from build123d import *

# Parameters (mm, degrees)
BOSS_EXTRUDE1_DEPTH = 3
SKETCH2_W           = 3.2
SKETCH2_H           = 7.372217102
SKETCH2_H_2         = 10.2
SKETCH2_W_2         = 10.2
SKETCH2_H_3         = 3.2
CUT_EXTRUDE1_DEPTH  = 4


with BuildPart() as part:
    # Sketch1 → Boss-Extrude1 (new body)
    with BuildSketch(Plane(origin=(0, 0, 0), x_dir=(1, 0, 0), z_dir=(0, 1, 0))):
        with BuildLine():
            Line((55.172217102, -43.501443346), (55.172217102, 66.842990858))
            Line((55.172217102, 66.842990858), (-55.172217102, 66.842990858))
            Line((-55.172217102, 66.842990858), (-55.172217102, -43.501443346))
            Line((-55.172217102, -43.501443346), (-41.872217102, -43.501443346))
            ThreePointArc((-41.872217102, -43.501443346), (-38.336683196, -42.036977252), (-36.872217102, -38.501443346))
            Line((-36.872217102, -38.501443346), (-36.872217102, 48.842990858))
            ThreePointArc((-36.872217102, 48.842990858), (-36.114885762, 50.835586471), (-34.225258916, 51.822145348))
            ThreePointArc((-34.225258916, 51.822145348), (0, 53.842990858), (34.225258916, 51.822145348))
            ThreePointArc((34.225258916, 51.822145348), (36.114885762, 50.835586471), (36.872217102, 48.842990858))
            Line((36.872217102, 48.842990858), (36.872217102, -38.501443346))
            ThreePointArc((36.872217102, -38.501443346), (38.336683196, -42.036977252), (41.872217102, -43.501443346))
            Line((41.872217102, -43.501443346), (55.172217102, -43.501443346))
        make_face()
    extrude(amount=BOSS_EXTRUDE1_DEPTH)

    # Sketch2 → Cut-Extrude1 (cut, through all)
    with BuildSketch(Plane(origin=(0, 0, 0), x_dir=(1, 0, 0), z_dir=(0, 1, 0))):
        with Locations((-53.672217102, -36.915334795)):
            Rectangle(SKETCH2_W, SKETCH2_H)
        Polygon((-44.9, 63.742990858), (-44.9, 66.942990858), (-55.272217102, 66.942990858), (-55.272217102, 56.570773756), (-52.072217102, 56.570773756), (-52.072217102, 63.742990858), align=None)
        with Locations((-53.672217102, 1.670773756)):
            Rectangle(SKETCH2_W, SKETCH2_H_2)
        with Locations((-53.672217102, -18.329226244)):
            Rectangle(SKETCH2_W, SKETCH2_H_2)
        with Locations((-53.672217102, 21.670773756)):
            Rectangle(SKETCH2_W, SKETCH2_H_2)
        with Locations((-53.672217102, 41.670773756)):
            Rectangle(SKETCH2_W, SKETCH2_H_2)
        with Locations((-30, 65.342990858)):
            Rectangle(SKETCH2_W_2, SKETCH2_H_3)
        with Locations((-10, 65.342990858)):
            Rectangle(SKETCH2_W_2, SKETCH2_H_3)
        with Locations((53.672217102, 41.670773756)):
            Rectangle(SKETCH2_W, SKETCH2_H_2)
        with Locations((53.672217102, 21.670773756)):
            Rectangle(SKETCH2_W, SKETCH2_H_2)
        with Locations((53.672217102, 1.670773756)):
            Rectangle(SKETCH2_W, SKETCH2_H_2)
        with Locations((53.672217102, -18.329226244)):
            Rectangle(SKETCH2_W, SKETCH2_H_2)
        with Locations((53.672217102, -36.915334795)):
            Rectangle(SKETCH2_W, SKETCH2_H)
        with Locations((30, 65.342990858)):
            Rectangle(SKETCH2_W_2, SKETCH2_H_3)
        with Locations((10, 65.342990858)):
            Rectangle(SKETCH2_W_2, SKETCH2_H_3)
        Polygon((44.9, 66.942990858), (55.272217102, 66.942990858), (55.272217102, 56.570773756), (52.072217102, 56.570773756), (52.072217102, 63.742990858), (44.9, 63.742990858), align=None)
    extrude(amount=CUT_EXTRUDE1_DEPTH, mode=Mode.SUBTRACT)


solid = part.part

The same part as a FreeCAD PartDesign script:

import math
import FreeCAD as App
import Part
import Sketcher

V = App.Vector

doc = App.newDocument("Part")
params = doc.addObject("Spreadsheet::Sheet", "Params")
for row, (alias, value) in enumerate([
    ("sketch1_radius", "5 mm"),
    ("sketch1_radius2", "3 mm"),
    ("sketch1_width", "13.3 mm"),
    ("pad1_length", "3 mm"),
    ("sketch2_width", "3.2 mm"),
    ("sketch2_width2", "10.2 mm"),
], start=1):
    params.set(f"A{row}", alias)
    params.set(f"B{row}", "=" + value)
    params.setAlias(f"B{row}", alias)

body = doc.addObject("PartDesign::Body", "Body")

# Sketch on XZ plane
sketch1 = doc.addObject("Sketcher::SketchObject", "Sketch")
body.addObject(sketch1)
sketch1.AttachmentSupport = (doc.XZ_Plane, [""])
sketch1.MapMode = "FlatFace"
sketch1.addGeometry(Part.LineSegment(V(55.2, 43.5, 0), V(55.2, -66.8, 0)), False)
sketch1.addGeometry(Part.LineSegment(V(55.2, -66.8, 0), V(-55.2, -66.8, 0)), False)
sketch1.addGeometry(Part.LineSegment(V(-55.2, -66.8, 0), V(-55.2, 43.5, 0)), False)
sketch1.addGeometry(Part.LineSegment(V(-55.2, 43.5, 0), V(-41.9, 43.5, 0)), False)
sketch1.addGeometry(Part.ArcOfCircle(Part.Circle(V(-41.9, 38.5, 0), V(0, 0, 1), 5), math.radians(0), math.radians(90)), False)
sketch1.addGeometry(Part.LineSegment(V(-36.9, 38.5, 0), V(-36.9, -48.8, 0)), False)
sketch1.addGeometry(Part.ArcOfCircle(Part.Circle(V(-33.9, -48.8, 0), V(0, 0, 1), 3), math.radians(-180), math.radians(-97)), False)
sketch1.addGeometry(Part.ArcOfCircle(Part.Circle(V(0, 237, 0), V(0, 0, 1), 290.8), math.radians(-96.76), math.radians(-83.24)), False)
sketch1.addGeometry(Part.ArcOfCircle(Part.Circle(V(33.9, -48.8, 0), V(0, 0, 1), 3), math.radians(-83), math.radians(0)), False)
sketch1.addGeometry(Part.LineSegment(V(36.9, -48.8, 0), V(36.9, 38.5, 0)), False)
sketch1.addGeometry(Part.ArcOfCircle(Part.Circle(V(41.9, 38.5, 0), V(0, 0, 1), 5), math.radians(90), math.radians(180)), False)
sketch1.addGeometry(Part.LineSegment(V(41.9, 43.5, 0), V(55.2, 43.5, 0)), False)
sketch1.addConstraint(Sketcher.Constraint("Coincident", 0, 2, 1, 1))
sketch1.addConstraint(Sketcher.Constraint("Coincident", 1, 2, 2, 1))
sketch1.addConstraint(Sketcher.Constraint("Coincident", 2, 2, 3, 1))
sketch1.addConstraint(Sketcher.Constraint("Tangent", 3, 2, 4, 2))
sketch1.addConstraint(Sketcher.Constraint("Tangent", 4, 1, 5, 1))
sketch1.addConstraint(Sketcher.Constraint("Tangent", 5, 2, 6, 1))
sketch1.addConstraint(Sketcher.Constraint("Tangent", 6, 2, 7, 1))
sketch1.addConstraint(Sketcher.Constraint("Tangent", 7, 2, 8, 1))
sketch1.addConstraint(Sketcher.Constraint("Tangent", 8, 2, 9, 1))
sketch1.addConstraint(Sketcher.Constraint("Tangent", 9, 2, 10, 2))
sketch1.addConstraint(Sketcher.Constraint("Tangent", 10, 1, 11, 1))
sketch1.addConstraint(Sketcher.Constraint("Coincident", 11, 2, 0, 1))
sketch1.addConstraint(Sketcher.Constraint("Vertical", 0))
sketch1.addConstraint(Sketcher.Constraint("Horizontal", 1))
sketch1.addConstraint(Sketcher.Constraint("Vertical", 2))
sketch1.addConstraint(Sketcher.Constraint("Horizontal", 3))
sketch1.addConstraint(Sketcher.Constraint("Vertical", 5))
sketch1.addConstraint(Sketcher.Constraint("Vertical", 9))
sketch1.addConstraint(Sketcher.Constraint("Horizontal", 11))
sketch1.addConstraint(Sketcher.Constraint("Equal", 6, 8))
sketch1.addConstraint(Sketcher.Constraint("Equal", 4, 10))
sketch1.addConstraint(Sketcher.Constraint("Symmetric", 6, 3, 8, 3, -2))
sketch1.addConstraint(Sketcher.Constraint("Symmetric", 2, 2, 11, 2, -2))
sketch1.addConstraint(Sketcher.Constraint("Equal", 1, 0))
sketch1.addConstraint(Sketcher.Constraint("Radius", 4, 5.0))
sketch1.addConstraint(Sketcher.Constraint("Radius", 6, 3.0))
sketch1.addConstraint(Sketcher.Constraint("DistanceX", 3, 1, 3, 2, 13.3))
sketch1.addConstraint(Sketcher.Constraint("DistanceY", 0, 2, 8, 3, 18.0))
sketch1.addConstraint(Sketcher.Constraint("Radius", 7, 290.831773))
sketch1.addConstraint(Sketcher.Constraint("DistanceX", 1, 2, 1, 1, 110.344434))
sketch1.addConstraint(Sketcher.Constraint("DistanceY", 6, 3, -1, 1, 48.842991))
sketch1.setExpression("Constraints[24]", "Params.sketch1_radius")
sketch1.setExpression("Constraints[25]", "Params.sketch1_radius2")
sketch1.setExpression("Constraints[26]", "Params.sketch1_width")
pad1 = doc.addObject("PartDesign::Pad", "Pad")
body.addObject(pad1)
pad1.Profile = sketch1
pad1.setExpression("Length", "Params.pad1_length")
pad1.Reversed = True

# Sketch on XZ plane
sketch2 = doc.addObject("Sketcher::SketchObject", "Sketch001")
body.addObject(sketch2)
sketch2.AttachmentSupport = (doc.XZ_Plane, [""])
sketch2.MapMode = "FlatFace"
sketch2.addGeometry(Part.LineSegment(V(-55.3, 33.2, 0), V(-55.3, 40.6, 0)), False)
sketch2.addGeometry(Part.LineSegment(V(-55.3, 40.6, 0), V(-52.1, 40.6, 0)), False)
sketch2.addGeometry(Part.LineSegment(V(-52.1, 40.6, 0), V(-52.1, 33.2, 0)), False)
sketch2.addGeometry(Part.LineSegment(V(-52.1, 33.2, 0), V(-55.3, 33.2, 0)), False)
sketch2.addGeometry(Part.LineSegment(V(-44.9, -63.7, 0), V(-44.9, -66.9, 0)), False)
sketch2.addGeometry(Part.LineSegment(V(-44.9, -66.9, 0), V(-55.3, -66.9, 0)), False)
sketch2.addGeometry(Part.LineSegment(V(-55.3, -66.9, 0), V(-55.3, -56.6, 0)), False)
sketch2.addGeometry(Part.LineSegment(V(-55.3, -56.6, 0), V(-52.1, -56.6, 0)), False)
sketch2.addGeometry(Part.LineSegment(V(-52.1, -56.6, 0), V(-52.1, -63.7, 0)), False)
sketch2.addGeometry(Part.LineSegment(V(-52.1, -63.7, 0), V(-44.9, -63.7, 0)), False)
sketch2.addGeometry(Part.LineSegment(V(-55.3, -6.8, 0), V(-55.3, 3.4, 0)), False)
sketch2.addGeometry(Part.LineSegment(V(-55.3, 3.4, 0), V(-52.1, 3.4, 0)), False)
sketch2.addGeometry(Part.LineSegment(V(-52.1, 3.4, 0), V(-52.1, -6.8, 0)), False)
sketch2.addGeometry(Part.LineSegment(V(-52.1, -6.8, 0), V(-55.3, -6.8, 0)), False)
sketch2.addGeometry(Part.LineSegment(V(-55.3, 13.2, 0), V(-55.3, 23.4, 0)), False)
sketch2.addGeometry(Part.LineSegment(V(-55.3, 23.4, 0), V(-52.1, 23.4, 0)), False)
sketch2.addGeometry(Part.LineSegment(V(-52.1, 23.4, 0), V(-52.1, 13.2, 0)), False)
sketch2.addGeometry(Part.LineSegment(V(-52.1, 13.2, 0), V(-55.3, 13.2, 0)), False)
sketch2.addGeometry(Part.LineSegment(V(-55.3, -26.8, 0), V(-55.3, -16.6, 0)), False)
sketch2.addGeometry(Part.LineSegment(V(-55.3, -16.6, 0), V(-52.1, -16.6, 0)), False)
sketch2.addGeometry(Part.LineSegment(V(-52.1, -16.6, 0), V(-52.1, -26.8, 0)), False)
sketch2.addGeometry(Part.LineSegment(V(-52.1, -26.8, 0), V(-55.3, -26.8, 0)), False)
sketch2.addGeometry(Part.LineSegment(V(-55.3, -46.8, 0), V(-55.3, -36.6, 0)), False)
sketch2.addGeometry(Part.LineSegment(V(-55.3, -36.6, 0), V(-52.1, -36.6, 0)), False)
sketch2.addGeometry(Part.LineSegment(V(-52.1, -36.6, 0), V(-52.1, -46.8, 0)), False)
sketch2.addGeometry(Part.LineSegment(V(-52.1, -46.8, 0), V(-55.3, -46.8, 0)), False)
sketch2.addGeometry(Part.LineSegment(V(-35.1, -66.9, 0), V(-35.1, -63.7, 0)), False)
sketch2.addGeometry(Part.LineSegment(V(-35.1, -63.7, 0), V(-24.9, -63.7, 0)), False)
sketch2.addGeometry(Part.LineSegment(V(-24.9, -63.7, 0), V(-24.9, -66.9, 0)), False)
sketch2.addGeometry(Part.LineSegment(V(-24.9, -66.9, 0), V(-35.1, -66.9, 0)), False)
sketch2.addGeometry(Part.LineSegment(V(-15.1, -66.9, 0), V(-15.1, -63.7, 0)), False)
sketch2.addGeometry(Part.LineSegment(V(-15.1, -63.7, 0), V(-4.9, -63.7, 0)), False)
sketch2.addGeometry(Part.LineSegment(V(-4.9, -63.7, 0), V(-4.9, -66.9, 0)), False)
sketch2.addGeometry(Part.LineSegment(V(-4.9, -66.9, 0), V(-15.1, -66.9, 0)), False)
sketch2.addGeometry(Part.LineSegment(V(52.1, -46.8, 0), V(52.1, -36.6, 0)), False)
sketch2.addGeometry(Part.LineSegment(V(52.1, -36.6, 0), V(55.3, -36.6, 0)), False)
sketch2.addGeometry(Part.LineSegment(V(55.3, -36.6, 0), V(55.3, -46.8, 0)), False)
sketch2.addGeometry(Part.LineSegment(V(55.3, -46.8, 0), V(52.1, -46.8, 0)), False)
sketch2.addGeometry(Part.LineSegment(V(52.1, -26.8, 0), V(52.1, -16.6, 0)), False)
sketch2.addGeometry(Part.LineSegment(V(52.1, -16.6, 0), V(55.3, -16.6, 0)), False)
sketch2.addGeometry(Part.LineSegment(V(55.3, -16.6, 0), V(55.3, -26.8, 0)), False)
sketch2.addGeometry(Part.LineSegment(V(55.3, -26.8, 0), V(52.1, -26.8, 0)), False)
sketch2.addGeometry(Part.LineSegment(V(52.1, -6.8, 0), V(52.1, 3.4, 0)), False)
sketch2.addGeometry(Part.LineSegment(V(52.1, 3.4, 0), V(55.3, 3.4, 0)), False)
sketch2.addGeometry(Part.LineSegment(V(55.3, 3.4, 0), V(55.3, -6.8, 0)), False)
sketch2.addGeometry(Part.LineSegment(V(55.3, -6.8, 0), V(52.1, -6.8, 0)), False)
sketch2.addGeometry(Part.LineSegment(V(52.1, 13.2, 0), V(52.1, 23.4, 0)), False)
sketch2.addGeometry(Part.LineSegment(V(52.1, 23.4, 0), V(55.3, 23.4, 0)), False)
sketch2.addGeometry(Part.LineSegment(V(55.3, 23.4, 0), V(55.3, 13.2, 0)), False)
sketch2.addGeometry(Part.LineSegment(V(55.3, 13.2, 0), V(52.1, 13.2, 0)), False)
sketch2.addGeometry(Part.LineSegment(V(52.1, 33.2, 0), V(52.1, 40.6, 0)), False)
sketch2.addGeometry(Part.LineSegment(V(52.1, 40.6, 0), V(55.3, 40.6, 0)), False)
sketch2.addGeometry(Part.LineSegment(V(55.3, 40.6, 0), V(55.3, 33.2, 0)), False)
sketch2.addGeometry(Part.LineSegment(V(55.3, 33.2, 0), V(52.1, 33.2, 0)), False)
sketch2.addGeometry(Part.LineSegment(V(24.9, -66.9, 0), V(24.9, -63.7, 0)), False)
sketch2.addGeometry(Part.LineSegment(V(24.9, -63.7, 0), V(35.1, -63.7, 0)), False)
sketch2.addGeometry(Part.LineSegment(V(35.1, -63.7, 0), V(35.1, -66.9, 0)), False)
sketch2.addGeometry(Part.LineSegment(V(35.1, -66.9, 0), V(24.9, -66.9, 0)), False)
sketch2.addGeometry(Part.LineSegment(V(4.9, -66.9, 0), V(4.9, -63.7, 0)), False)
sketch2.addGeometry(Part.LineSegment(V(4.9, -63.7, 0), V(15.1, -63.7, 0)), False)
sketch2.addGeometry(Part.LineSegment(V(15.1, -63.7, 0), V(15.1, -66.9, 0)), False)
sketch2.addGeometry(Part.LineSegment(V(15.1, -66.9, 0), V(4.9, -66.9, 0)), False)
sketch2.addGeometry(Part.LineSegment(V(55.3, -66.9, 0), V(44.9, -66.9, 0)), False)
sketch2.addGeometry(Part.LineSegment(V(44.9, -66.9, 0), V(44.9, -63.7, 0)), False)
sketch2.addGeometry(Part.LineSegment(V(44.9, -63.7, 0), V(52.1, -63.7, 0)), False)
sketch2.addGeometry(Part.LineSegment(V(52.1, -63.7, 0), V(52.1, -56.6, 0)), False)
sketch2.addGeometry(Part.LineSegment(V(52.1, -56.6, 0), V(55.3, -56.6, 0)), False)
sketch2.addGeometry(Part.LineSegment(V(55.3, -56.6, 0), V(55.3, -66.9, 0)), False)
sketch2.addConstraint(Sketcher.Constraint("Coincident", 0, 2, 1, 1))
sketch2.addConstraint(Sketcher.Constraint("Coincident", 1, 2, 2, 1))
sketch2.addConstraint(Sketcher.Constraint("Coincident", 2, 2, 3, 1))
sketch2.addConstraint(Sketcher.Constraint("Coincident", 3, 2, 0, 1))
sketch2.addConstraint(Sketcher.Constraint("Coincident", 4, 2, 5, 1))
sketch2.addConstraint(Sketcher.Constraint("Coincident", 5, 2, 6, 1))
sketch2.addConstraint(Sketcher.Constraint("Coincident", 6, 2, 7, 1))
sketch2.addConstraint(Sketcher.Constraint("Coincident", 7, 2, 8, 1))
sketch2.addConstraint(Sketcher.Constraint("Coincident", 8, 2, 9, 1))
sketch2.addConstraint(Sketcher.Constraint("Coincident", 9, 2, 4, 1))
sketch2.addConstraint(Sketcher.Constraint("Coincident", 10, 2, 11, 1))
sketch2.addConstraint(Sketcher.Constraint("Coincident", 11, 2, 12, 1))
sketch2.addConstraint(Sketcher.Constraint("Coincident", 12, 2, 13, 1))
sketch2.addConstraint(Sketcher.Constraint("Coincident", 13, 2, 10, 1))
sketch2.addConstraint(Sketcher.Constraint("Coincident", 14, 2, 15, 1))
sketch2.addConstraint(Sketcher.Constraint("Coincident", 15, 2, 16, 1))
sketch2.addConstraint(Sketcher.Constraint("Coincident", 16, 2, 17, 1))
sketch2.addConstraint(Sketcher.Constraint("Coincident", 17, 2, 14, 1))
sketch2.addConstraint(Sketcher.Constraint("Coincident", 18, 2, 19, 1))
sketch2.addConstraint(Sketcher.Constraint("Coincident", 19, 2, 20, 1))
sketch2.addConstraint(Sketcher.Constraint("Coincident", 20, 2, 21, 1))
sketch2.addConstraint(Sketcher.Constraint("Coincident", 21, 2, 18, 1))
sketch2.addConstraint(Sketcher.Constraint("Coincident", 22, 2, 23, 1))
sketch2.addConstraint(Sketcher.Constraint("Coincident", 23, 2, 24, 1))
sketch2.addConstraint(Sketcher.Constraint("Coincident", 24, 2, 25, 1))
sketch2.addConstraint(Sketcher.Constraint("Coincident", 25, 2, 22, 1))
sketch2.addConstraint(Sketcher.Constraint("Coincident", 26, 2, 27, 1))
sketch2.addConstraint(Sketcher.Constraint("Coincident", 27, 2, 28, 1))
sketch2.addConstraint(Sketcher.Constraint("Coincident", 28, 2, 29, 1))
sketch2.addConstraint(Sketcher.Constraint("Coincident", 29, 2, 26, 1))
sketch2.addConstraint(Sketcher.Constraint("Coincident", 30, 2, 31, 1))
sketch2.addConstraint(Sketcher.Constraint("Coincident", 31, 2, 32, 1))
sketch2.addConstraint(Sketcher.Constraint("Coincident", 32, 2, 33, 1))
sketch2.addConstraint(Sketcher.Constraint("Coincident", 33, 2, 30, 1))
sketch2.addConstraint(Sketcher.Constraint("Coincident", 34, 2, 35, 1))
sketch2.addConstraint(Sketcher.Constraint("Coincident", 35, 2, 36, 1))
sketch2.addConstraint(Sketcher.Constraint("Coincident", 36, 2, 37, 1))
sketch2.addConstraint(Sketcher.Constraint("Coincident", 37, 2, 34, 1))
sketch2.addConstraint(Sketcher.Constraint("Coincident", 38, 2, 39, 1))
sketch2.addConstraint(Sketcher.Constraint("Coincident", 39, 2, 40, 1))
sketch2.addConstraint(Sketcher.Constraint("Coincident", 40, 2, 41, 1))
sketch2.addConstraint(Sketcher.Constraint("Coincident", 41, 2, 38, 1))
sketch2.addConstraint(Sketcher.Constraint("Coincident", 42, 2, 43, 1))
sketch2.addConstraint(Sketcher.Constraint("Coincident", 43, 2, 44, 1))
sketch2.addConstraint(Sketcher.Constraint("Coincident", 44, 2, 45, 1))
sketch2.addConstraint(Sketcher.Constraint("Coincident", 45, 2, 42, 1))
sketch2.addConstraint(Sketcher.Constraint("Coincident", 46, 2, 47, 1))
sketch2.addConstraint(Sketcher.Constraint("Coincident", 47, 2, 48, 1))
sketch2.addConstraint(Sketcher.Constraint("Coincident", 48, 2, 49, 1))
sketch2.addConstraint(Sketcher.Constraint("Coincident", 49, 2, 46, 1))
sketch2.addConstraint(Sketcher.Constraint("Coincident", 50, 2, 51, 1))
sketch2.addConstraint(Sketcher.Constraint("Coincident", 51, 2, 52, 1))
sketch2.addConstraint(Sketcher.Constraint("Coincident", 52, 2, 53, 1))
sketch2.addConstraint(Sketcher.Constraint("Coincident", 53, 2, 50, 1))
sketch2.addConstraint(Sketcher.Constraint("Coincident", 54, 2, 55, 1))
sketch2.addConstraint(Sketcher.Constraint("Coincident", 55, 2, 56, 1))
sketch2.addConstraint(Sketcher.Constraint("Coincident", 56, 2, 57, 1))
sketch2.addConstraint(Sketcher.Constraint("Coincident", 57, 2, 54, 1))
sketch2.addConstraint(Sketcher.Constraint("Coincident", 58, 2, 59, 1))
sketch2.addConstraint(Sketcher.Constraint("Coincident", 59, 2, 60, 1))
sketch2.addConstraint(Sketcher.Constraint("Coincident", 60, 2, 61, 1))
sketch2.addConstraint(Sketcher.Constraint("Coincident", 61, 2, 58, 1))
sketch2.addConstraint(Sketcher.Constraint("Coincident", 62, 2, 63, 1))
sketch2.addConstraint(Sketcher.Constraint("Coincident", 63, 2, 64, 1))
sketch2.addConstraint(Sketcher.Constraint("Coincident", 64, 2, 65, 1))
sketch2.addConstraint(Sketcher.Constraint("Coincident", 65, 2, 66, 1))
sketch2.addConstraint(Sketcher.Constraint("Coincident", 66, 2, 67, 1))
sketch2.addConstraint(Sketcher.Constraint("Coincident", 67, 2, 62, 1))
sketch2.addConstraint(Sketcher.Constraint("Vertical", 0))
sketch2.addConstraint(Sketcher.Constraint("Horizontal", 1))
sketch2.addConstraint(Sketcher.Constraint("Vertical", 2))
sketch2.addConstraint(Sketcher.Constraint("Horizontal", 3))
sketch2.addConstraint(Sketcher.Constraint("Vertical", 4))
sketch2.addConstraint(Sketcher.Constraint("Horizontal", 5))
sketch2.addConstraint(Sketcher.Constraint("Vertical", 6))
sketch2.addConstraint(Sketcher.Constraint("Horizontal", 7))
sketch2.addConstraint(Sketcher.Constraint("Vertical", 8))
sketch2.addConstraint(Sketcher.Constraint("Horizontal", 9))
sketch2.addConstraint(Sketcher.Constraint("Vertical", 10))
sketch2.addConstraint(Sketcher.Constraint("Horizontal", 11))
sketch2.addConstraint(Sketcher.Constraint("Vertical", 12))
sketch2.addConstraint(Sketcher.Constraint("Horizontal", 13))
sketch2.addConstraint(Sketcher.Constraint("Vertical", 14))
sketch2.addConstraint(Sketcher.Constraint("Horizontal", 15))
sketch2.addConstraint(Sketcher.Constraint("Vertical", 16))
sketch2.addConstraint(Sketcher.Constraint("Horizontal", 17))
sketch2.addConstraint(Sketcher.Constraint("Vertical", 18))
sketch2.addConstraint(Sketcher.Constraint("Horizontal", 19))
sketch2.addConstraint(Sketcher.Constraint("Vertical", 20))
sketch2.addConstraint(Sketcher.Constraint("Horizontal", 21))
sketch2.addConstraint(Sketcher.Constraint("Vertical", 22))
sketch2.addConstraint(Sketcher.Constraint("Horizontal", 23))
sketch2.addConstraint(Sketcher.Constraint("Vertical", 24))
sketch2.addConstraint(Sketcher.Constraint("Horizontal", 25))
sketch2.addConstraint(Sketcher.Constraint("Vertical", 26))
sketch2.addConstraint(Sketcher.Constraint("Horizontal", 27))
sketch2.addConstraint(Sketcher.Constraint("Vertical", 28))
sketch2.addConstraint(Sketcher.Constraint("Horizontal", 29))
sketch2.addConstraint(Sketcher.Constraint("Vertical", 30))
sketch2.addConstraint(Sketcher.Constraint("Horizontal", 31))
sketch2.addConstraint(Sketcher.Constraint("Vertical", 32))
sketch2.addConstraint(Sketcher.Constraint("Horizontal", 33))
sketch2.addConstraint(Sketcher.Constraint("Vertical", 34))
sketch2.addConstraint(Sketcher.Constraint("Horizontal", 35))
sketch2.addConstraint(Sketcher.Constraint("Vertical", 36))
sketch2.addConstraint(Sketcher.Constraint("Horizontal", 37))
sketch2.addConstraint(Sketcher.Constraint("Vertical", 38))
sketch2.addConstraint(Sketcher.Constraint("Horizontal", 39))
sketch2.addConstraint(Sketcher.Constraint("Vertical", 40))
sketch2.addConstraint(Sketcher.Constraint("Horizontal", 41))
sketch2.addConstraint(Sketcher.Constraint("Vertical", 42))
sketch2.addConstraint(Sketcher.Constraint("Horizontal", 43))
sketch2.addConstraint(Sketcher.Constraint("Vertical", 44))
sketch2.addConstraint(Sketcher.Constraint("Horizontal", 45))
sketch2.addConstraint(Sketcher.Constraint("Vertical", 46))
sketch2.addConstraint(Sketcher.Constraint("Horizontal", 47))
sketch2.addConstraint(Sketcher.Constraint("Vertical", 48))
sketch2.addConstraint(Sketcher.Constraint("Horizontal", 49))
sketch2.addConstraint(Sketcher.Constraint("Vertical", 50))
sketch2.addConstraint(Sketcher.Constraint("Horizontal", 51))
sketch2.addConstraint(Sketcher.Constraint("Vertical", 52))
sketch2.addConstraint(Sketcher.Constraint("Horizontal", 53))
sketch2.addConstraint(Sketcher.Constraint("Vertical", 54))
sketch2.addConstraint(Sketcher.Constraint("Horizontal", 55))
sketch2.addConstraint(Sketcher.Constraint("Vertical", 56))
sketch2.addConstraint(Sketcher.Constraint("Horizontal", 57))
sketch2.addConstraint(Sketcher.Constraint("Vertical", 58))
sketch2.addConstraint(Sketcher.Constraint("Horizontal", 59))
sketch2.addConstraint(Sketcher.Constraint("Vertical", 60))
sketch2.addConstraint(Sketcher.Constraint("Horizontal", 61))
sketch2.addConstraint(Sketcher.Constraint("Horizontal", 62))
sketch2.addConstraint(Sketcher.Constraint("Vertical", 63))
sketch2.addConstraint(Sketcher.Constraint("Horizontal", 64))
sketch2.addConstraint(Sketcher.Constraint("Vertical", 65))
sketch2.addConstraint(Sketcher.Constraint("Horizontal", 66))
sketch2.addConstraint(Sketcher.Constraint("Vertical", 67))
sketch2.addConstraint(Sketcher.Constraint("Symmetric", 23, 2, 34, 2, -2))
sketch2.addConstraint(Sketcher.Constraint("Symmetric", 25, 2, 36, 2, -2))
sketch2.addConstraint(Sketcher.Constraint("Symmetric", 19, 2, 38, 2, -2))
sketch2.addConstraint(Sketcher.Constraint("Symmetric", 21, 2, 40, 2, -2))
sketch2.addConstraint(Sketcher.Constraint("Symmetric", 11, 2, 42, 2, -2))
sketch2.addConstraint(Sketcher.Constraint("Symmetric", 13, 2, 44, 2, -2))
sketch2.addConstraint(Sketcher.Constraint("Symmetric", 15, 2, 46, 2, -2))
sketch2.addConstraint(Sketcher.Constraint("Symmetric", 17, 2, 48, 2, -2))
sketch2.addConstraint(Sketcher.Constraint("Symmetric", 1, 2, 50, 2, -2))
sketch2.addConstraint(Sketcher.Constraint("Symmetric", 3, 2, 52, 2, -2))
sketch2.addConstraint(Sketcher.Constraint("Symmetric", 27, 2, 54, 2, -2))
sketch2.addConstraint(Sketcher.Constraint("Symmetric", 29, 2, 56, 2, -2))
sketch2.addConstraint(Sketcher.Constraint("Symmetric", 31, 2, 58, 2, -2))
sketch2.addConstraint(Sketcher.Constraint("Symmetric", 33, 2, 60, 2, -2))
sketch2.addConstraint(Sketcher.Constraint("Symmetric", 4, 2, 62, 2, -2))
sketch2.addConstraint(Sketcher.Constraint("Symmetric", 8, 2, 64, 2, -2))
sketch2.addConstraint(Sketcher.Constraint("Symmetric", 6, 2, 66, 2, -2))
sketch2.addConstraint(Sketcher.Constraint("Horizontal", 9, 2, 26, 2))
sketch2.addConstraint(Sketcher.Constraint("Horizontal", 5, 2, 28, 2))
sketch2.addConstraint(Sketcher.Constraint("Horizontal", 27, 2, 30, 2))
sketch2.addConstraint(Sketcher.Constraint("Horizontal", 29, 2, 32, 2))
sketch2.addConstraint(Sketcher.Constraint("Vertical", 3, 2, 5, 2))
sketch2.addConstraint(Sketcher.Constraint("Vertical", 2, 2, 7, 2))
sketch2.addConstraint(Sketcher.Constraint("Vertical", 6, 2, 10, 2))
sketch2.addConstraint(Sketcher.Constraint("Vertical", 8, 2, 11, 2))
sketch2.addConstraint(Sketcher.Constraint("Vertical", 13, 2, 14, 2))
sketch2.addConstraint(Sketcher.Constraint("Vertical", 12, 2, 15, 2))
sketch2.addConstraint(Sketcher.Constraint("Vertical", 17, 2, 18, 2))
sketch2.addConstraint(Sketcher.Constraint("Vertical", 16, 2, 19, 2))
sketch2.addConstraint(Sketcher.Constraint("Vertical", 21, 2, 22, 2))
sketch2.addConstraint(Sketcher.Constraint("Vertical", 20, 2, 23, 2))
sketch2.addConstraint(Sketcher.Constraint("Equal", 29, 31))
sketch2.addConstraint(Sketcher.Constraint("Equal", 66, 4))
sketch2.addConstraint(Sketcher.Constraint("Equal", 62, 6))
sketch2.addConstraint(Sketcher.Constraint("Equal", 61, 10))
sketch2.addConstraint(Sketcher.Constraint("Equal", 12, 14))
sketch2.addConstraint(Sketcher.Constraint("Equal", 16, 18))
sketch2.addConstraint(Sketcher.Constraint("Equal", 20, 22))
sketch2.addConstraint(Sketcher.Constraint("DistanceX", 1, 1, 1, 2, 3.2))
sketch2.addConstraint(Sketcher.Constraint("DistanceX", 27, 1, 27, 2, 10.2))
sketch2.addConstraint(Sketcher.Constraint("DistanceX", 4, 2, -1, 1, 44.9))
sketch2.addConstraint(Sketcher.Constraint("DistanceX", 26, 2, -1, 1, 35.1))
sketch2.addConstraint(Sketcher.Constraint("DistanceX", 30, 2, -1, 1, 15.1))
sketch2.addConstraint(Sketcher.Constraint("DistanceX", 5, 2, 5, 1, 10.372217))
sketch2.addConstraint(Sketcher.Constraint("DistanceY", 0, 1, 0, 2, 7.372217))
sketch2.addConstraint(Sketcher.Constraint("DistanceY", 4, 2, -1, 1, 66.942991))
sketch2.addConstraint(Sketcher.Constraint("DistanceY", -1, 1, 0, 2, 40.601443))
sketch2.addConstraint(Sketcher.Constraint("DistanceY", -1, 1, 10, 2, 3.429226))
sketch2.addConstraint(Sketcher.Constraint("DistanceY", -1, 1, 14, 2, 23.429226))
sketch2.addConstraint(Sketcher.Constraint("DistanceY", 18, 2, -1, 1, 16.570774))
sketch2.addConstraint(Sketcher.Constraint("DistanceY", 22, 2, -1, 1, 36.570774))
sketch2.setExpression("Constraints[174]", "Params.sketch2_width")
sketch2.setExpression("Constraints[175]", "Params.sketch2_width2")
pocket1 = doc.addObject("PartDesign::Pocket", "Pocket")
body.addObject(pocket1)
pocket1.Profile = sketch2
pocket1.Type = "ThroughAll"

doc.recompute()
